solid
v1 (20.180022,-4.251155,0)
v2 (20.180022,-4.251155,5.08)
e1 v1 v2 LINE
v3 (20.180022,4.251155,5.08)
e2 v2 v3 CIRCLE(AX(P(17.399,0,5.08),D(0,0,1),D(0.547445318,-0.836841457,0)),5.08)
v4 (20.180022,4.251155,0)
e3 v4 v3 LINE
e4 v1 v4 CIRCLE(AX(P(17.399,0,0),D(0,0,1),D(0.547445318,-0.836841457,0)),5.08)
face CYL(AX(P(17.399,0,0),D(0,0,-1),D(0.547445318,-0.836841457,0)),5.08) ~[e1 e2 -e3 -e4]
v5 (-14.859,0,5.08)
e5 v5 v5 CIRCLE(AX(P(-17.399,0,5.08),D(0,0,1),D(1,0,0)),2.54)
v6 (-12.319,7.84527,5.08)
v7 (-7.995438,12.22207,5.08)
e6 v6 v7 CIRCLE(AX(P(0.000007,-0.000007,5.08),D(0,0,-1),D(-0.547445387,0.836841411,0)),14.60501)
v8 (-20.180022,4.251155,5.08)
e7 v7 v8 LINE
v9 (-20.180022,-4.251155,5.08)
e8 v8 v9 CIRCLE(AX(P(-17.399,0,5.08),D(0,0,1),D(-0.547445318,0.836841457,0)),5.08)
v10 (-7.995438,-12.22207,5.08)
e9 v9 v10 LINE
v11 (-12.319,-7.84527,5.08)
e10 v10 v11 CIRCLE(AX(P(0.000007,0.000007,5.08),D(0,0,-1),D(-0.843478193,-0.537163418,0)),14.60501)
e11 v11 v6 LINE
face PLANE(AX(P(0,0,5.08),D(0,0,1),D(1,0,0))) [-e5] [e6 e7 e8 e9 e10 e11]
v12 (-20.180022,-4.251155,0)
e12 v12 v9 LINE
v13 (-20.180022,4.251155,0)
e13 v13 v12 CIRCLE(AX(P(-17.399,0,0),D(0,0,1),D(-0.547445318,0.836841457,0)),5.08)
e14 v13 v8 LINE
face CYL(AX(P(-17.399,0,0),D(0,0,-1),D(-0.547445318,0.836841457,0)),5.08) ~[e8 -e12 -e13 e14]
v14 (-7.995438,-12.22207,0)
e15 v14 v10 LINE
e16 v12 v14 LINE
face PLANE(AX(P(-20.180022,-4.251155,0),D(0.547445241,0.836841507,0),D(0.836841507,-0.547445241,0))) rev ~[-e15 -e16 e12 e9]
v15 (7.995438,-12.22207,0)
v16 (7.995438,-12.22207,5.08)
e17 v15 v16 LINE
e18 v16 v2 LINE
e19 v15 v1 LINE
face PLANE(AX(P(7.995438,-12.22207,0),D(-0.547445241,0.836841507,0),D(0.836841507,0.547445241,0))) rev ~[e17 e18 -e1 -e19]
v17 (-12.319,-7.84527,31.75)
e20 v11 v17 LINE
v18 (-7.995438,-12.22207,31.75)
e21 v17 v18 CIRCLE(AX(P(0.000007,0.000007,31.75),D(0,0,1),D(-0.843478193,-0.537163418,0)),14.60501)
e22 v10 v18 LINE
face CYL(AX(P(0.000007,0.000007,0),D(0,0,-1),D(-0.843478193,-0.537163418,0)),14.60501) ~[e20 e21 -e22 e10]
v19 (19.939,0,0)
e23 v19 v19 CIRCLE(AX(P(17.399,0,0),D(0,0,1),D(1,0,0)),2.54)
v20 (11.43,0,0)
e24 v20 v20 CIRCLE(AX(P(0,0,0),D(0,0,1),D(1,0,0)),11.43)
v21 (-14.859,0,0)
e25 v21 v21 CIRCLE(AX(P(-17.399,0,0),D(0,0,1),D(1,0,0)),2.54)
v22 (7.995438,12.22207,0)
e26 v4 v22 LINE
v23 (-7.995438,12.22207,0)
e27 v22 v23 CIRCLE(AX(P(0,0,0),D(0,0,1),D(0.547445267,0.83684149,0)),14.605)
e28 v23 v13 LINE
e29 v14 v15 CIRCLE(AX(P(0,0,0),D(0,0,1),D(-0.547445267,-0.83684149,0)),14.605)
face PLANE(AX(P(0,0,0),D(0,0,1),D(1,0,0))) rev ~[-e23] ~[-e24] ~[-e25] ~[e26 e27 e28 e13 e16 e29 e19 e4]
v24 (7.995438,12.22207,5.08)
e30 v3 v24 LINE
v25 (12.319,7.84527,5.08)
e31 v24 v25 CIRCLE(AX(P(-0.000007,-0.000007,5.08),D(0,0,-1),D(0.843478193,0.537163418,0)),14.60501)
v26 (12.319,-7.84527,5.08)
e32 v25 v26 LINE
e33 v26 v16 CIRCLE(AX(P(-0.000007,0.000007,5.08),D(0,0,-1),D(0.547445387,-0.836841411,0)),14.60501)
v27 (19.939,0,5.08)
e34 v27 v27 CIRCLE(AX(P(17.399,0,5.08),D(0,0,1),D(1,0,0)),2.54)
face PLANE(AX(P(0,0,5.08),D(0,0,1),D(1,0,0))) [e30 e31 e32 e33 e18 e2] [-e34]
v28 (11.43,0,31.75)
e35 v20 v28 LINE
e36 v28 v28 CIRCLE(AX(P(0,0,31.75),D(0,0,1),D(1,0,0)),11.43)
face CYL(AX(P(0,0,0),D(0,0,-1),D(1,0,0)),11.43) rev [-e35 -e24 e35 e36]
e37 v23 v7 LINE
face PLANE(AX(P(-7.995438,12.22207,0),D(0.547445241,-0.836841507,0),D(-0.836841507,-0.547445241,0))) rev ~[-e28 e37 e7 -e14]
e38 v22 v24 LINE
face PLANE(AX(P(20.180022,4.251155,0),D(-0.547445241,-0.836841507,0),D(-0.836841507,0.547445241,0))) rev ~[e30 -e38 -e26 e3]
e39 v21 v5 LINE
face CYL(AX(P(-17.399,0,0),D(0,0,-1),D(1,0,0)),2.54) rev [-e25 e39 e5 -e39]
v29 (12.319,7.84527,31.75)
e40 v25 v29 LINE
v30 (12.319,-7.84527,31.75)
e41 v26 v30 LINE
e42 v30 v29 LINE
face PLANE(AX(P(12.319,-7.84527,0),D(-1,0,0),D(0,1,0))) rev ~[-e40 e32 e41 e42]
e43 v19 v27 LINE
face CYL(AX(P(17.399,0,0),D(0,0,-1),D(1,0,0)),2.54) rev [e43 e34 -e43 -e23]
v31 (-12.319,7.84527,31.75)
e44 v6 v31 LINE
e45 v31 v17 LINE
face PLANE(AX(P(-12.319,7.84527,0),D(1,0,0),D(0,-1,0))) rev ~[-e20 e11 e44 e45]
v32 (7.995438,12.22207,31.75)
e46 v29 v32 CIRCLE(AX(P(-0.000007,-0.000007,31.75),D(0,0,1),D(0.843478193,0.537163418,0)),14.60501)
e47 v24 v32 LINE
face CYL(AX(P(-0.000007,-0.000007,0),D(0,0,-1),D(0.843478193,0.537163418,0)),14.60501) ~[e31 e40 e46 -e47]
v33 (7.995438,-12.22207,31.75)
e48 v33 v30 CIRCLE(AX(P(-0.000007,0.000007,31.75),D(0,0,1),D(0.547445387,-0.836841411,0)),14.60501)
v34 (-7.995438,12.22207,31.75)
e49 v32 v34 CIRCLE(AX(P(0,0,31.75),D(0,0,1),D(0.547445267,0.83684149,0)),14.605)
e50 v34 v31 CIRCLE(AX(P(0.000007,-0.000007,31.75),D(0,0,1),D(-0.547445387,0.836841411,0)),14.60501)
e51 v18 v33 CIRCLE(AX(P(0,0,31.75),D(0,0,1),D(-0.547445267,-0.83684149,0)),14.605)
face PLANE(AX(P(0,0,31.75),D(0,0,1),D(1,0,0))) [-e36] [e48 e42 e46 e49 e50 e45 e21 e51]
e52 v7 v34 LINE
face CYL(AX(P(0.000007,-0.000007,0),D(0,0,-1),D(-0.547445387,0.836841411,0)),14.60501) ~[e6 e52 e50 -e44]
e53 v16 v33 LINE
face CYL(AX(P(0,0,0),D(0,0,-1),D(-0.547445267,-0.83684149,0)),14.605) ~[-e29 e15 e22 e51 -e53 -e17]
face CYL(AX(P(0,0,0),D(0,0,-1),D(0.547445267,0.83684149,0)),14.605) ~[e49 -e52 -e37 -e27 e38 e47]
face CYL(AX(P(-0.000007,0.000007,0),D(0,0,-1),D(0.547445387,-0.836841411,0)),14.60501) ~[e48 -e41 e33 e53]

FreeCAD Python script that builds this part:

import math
import FreeCAD as App
import Part
import Sketcher

V = App.Vector
Q = App.Units.Quantity

doc = App.newDocument("Part")
body = doc.addObject("PartDesign::Body", "Body")

# Sketch on XY plane
sketch1 = body.newObject("Sketcher::SketchObject", "Sketch")
sketch1.AttachmentSupport = (doc.getObject("XY_Plane"), [""])
sketch1.MapMode = "FlatFace"
sketch1.addGeometry([
    Part.ArcOfCircle(Part.Circle(V(0, 0, 0), V(0, 0, 1), 14.605), math.radians(56.808076), math.radians(123.191924)),  # 0
    Part.LineSegment(V(-7.995438, 12.22207, 0), V(-20.180022, 4.251155, 0)),  # 1
    Part.ArcOfCircle(Part.Circle(V(-17.399, 0, 0), V(0, 0, 1), 5.08), math.radians(123.191927), math.radians(236.808073)),  # 2
    Part.LineSegment(V(-20.180022, -4.251155, 0), V(-7.995438, -12.22207, 0)),  # 3
    Part.ArcOfCircle(Part.Circle(V(0, 0, 0), V(0, 0, 1), 14.605), math.radians(-123.191924), math.radians(-56.808076)),  # 4
    Part.LineSegment(V(7.995438, -12.22207, 0), V(20.180022, -4.251155, 0)),  # 5
    Part.ArcOfCircle(Part.Circle(V(17.399, 0, 0), V(0, 0, 1), 5.08), math.radians(-56.808073), math.radians(56.808073)),  # 6
    Part.LineSegment(V(20.180022, 4.251155, 0), V(7.995438, 12.22207, 0)),  # 7
    Part.Circle(V(-17.399, 0, 0), V(0, 0, 1), 2.54),  # 8
    Part.Circle(V(0, 0, 0), V(0, 0, 1), 11.43),  # 9
    Part.Circle(V(17.399, 0, 0), V(0, 0, 1), 2.54),  # 10
], False)
sketch1.addConstraint([
    Sketcher.Constraint("Tangent", 0, 2, 1, 1),
    Sketcher.Constraint("Tangent", 1, 2, 2, 1),
    Sketcher.Constraint("Tangent", 2, 2, 3, 1),
    Sketcher.Constraint("Tangent", 3, 2, 4, 1),
    Sketcher.Constraint("Tangent", 4, 2, 5, 1),
    Sketcher.Constraint("Tangent", 5, 2, 6, 1),
    Sketcher.Constraint("Tangent", 6, 2, 7, 1),
    Sketcher.Constraint("Tangent", 7, 2, 0, 1),
    Sketcher.Constraint("Coincident", 0, 3, -1, 1),
    Sketcher.Constraint("Coincident", 4, 3, -1, 1),
    Sketcher.Constraint("Coincident", 9, 3, -1, 1),
    Sketcher.Constraint("Coincident", 8, 3, 2, 3),
    Sketcher.Constraint("Coincident", 10, 3, 6, 3),
    Sketcher.Constraint("Equal", 0, 4),
    Sketcher.Constraint("Equal", 2, 6),
    Sketcher.Constraint("Equal", 8, 10),
    Sketcher.Constraint("Symmetric", 2, 3, 6, 3, -1, 1),
    Sketcher.Constraint("PointOnObject", 2, 3, -1),
    Sketcher.Constraint("Diameter", 8, Q("0.2 in")),
    Sketcher.Constraint("Diameter", 9, Q("0.9 in")),
    Sketcher.Constraint("Radius", 2, Q("0.2 in")),
    Sketcher.Constraint("Radius", 0, Q("0.575 in")),
    Sketcher.Constraint("DistanceX", 2, 3, 6, 3, Q("1.37 in")),
])
pad1 = body.newObject("PartDesign::Pad", "Pad")
pad1.Profile = sketch1
pad1.Length = Q("0.2 in")

# Sketch on XY plane
sketch2 = body.newObject("Sketcher::SketchObject", "Sketch001")
sketch2.AttachmentSupport = (doc.getObject("XY_Plane"), [""])
sketch2.MapMode = "FlatFace"
sketch2.addGeometry([
    Part.LineSegment(V(12.319, -7.84527, 0), V(12.319, 7.84527, 0)),  # 0
    Part.ArcOfCircle(Part.Circle(V(-0.000007, -0.000007, 0), V(0, 0, 1), 14.60501), math.radians(32.490748), math.radians(56.808068)),  # 1
    Part.ArcOfCircle(Part.Circle(V(0, 0, 0), V(0, 0, 1), 14.605), math.radians(56.808076), math.radians(123.191924)),  # 2
    Part.ArcOfCircle(Part.Circle(V(0.000007, -0.000007, 0), V(0, 0, 1), 14.60501), math.radians(123.191932), math.radians(147.509252)),  # 3
    Part.LineSegment(V(-12.319, 7.84527, 0), V(-12.319, -7.84527, 0)),  # 4
    Part.ArcOfCircle(Part.Circle(V(0.000007, 0.000007, 0), V(0, 0, 1), 14.60501), math.radians(-147.509252), math.radians(-123.191932)),  # 5
    Part.ArcOfCircle(Part.Circle(V(0, 0, 0), V(0, 0, 1), 14.605), math.radians(-123.191924), math.radians(-56.808076)),  # 6
    Part.ArcOfCircle(Part.Circle(V(-0.000007, 0.000007, 0), V(0, 0, 1), 14.60501), math.radians(-56.808068), math.radians(-32.490748)),  # 7
    Part.Circle(V(0, 0, 0), V(0, 0, 1), 11.43),  # 8
], False)
sketch2.addConstraint([
    Sketcher.Constraint("Coincident", 0, 2, 1, 1),
    Sketcher.Constraint("Tangent", 1, 2, 2, 1),
    Sketcher.Constraint("Tangent", 2, 2, 3, 1),
    Sketcher.Constraint("Coincident", 3, 2, 4, 1),
    Sketcher.Constraint("Coincident", 4, 2, 5, 1),
    Sketcher.Constraint("Tangent", 5, 2, 6, 1),
    Sketcher.Constraint("Tangent", 6, 2, 7, 1),
    Sketcher.Constraint("Coincident", 7, 2, 0, 1),
    Sketcher.Constraint("Vertical", 0),
    Sketcher.Constraint("Vertical", 4),
    Sketcher.Constraint("Coincident", 1, 3, -1, 1),
    Sketcher.Constraint("Coincident", 3, 3, -1, 1),
    Sketcher.Constraint("Coincident", 5, 3, -1, 1),
    Sketcher.Constraint("Coincident", 7, 3, -1, 1),
    Sketcher.Constraint("Coincident", 8, 3, -1, 1),
    Sketcher.Constraint("Equal", 3, 5),
    Sketcher.Constraint("Horizontal", 1, 2, 2, 2),
    Sketcher.Constraint("Horizontal", 0, 2, 3, 2),
    Sketcher.Constraint("Horizontal", 5, 2, 6, 2),
    Sketcher.Constraint("Vertical", 2, 2, 5, 2),
    Sketcher.Constraint("Diameter", 8, Q("0.9 in")),
    Sketcher.Constraint("Radius", 2, Q("0.575 in")),
    Sketcher.Constraint("DistanceX", -1, 1, 0, 2, Q("0.485 in")),
    Sketcher.Constraint("DistanceY", 0, 2, 1, 2, 4.3768),
])
pad2 = body.newObject("PartDesign::Pad", "Pad001")
pad2.Profile = sketch2
pad2.Length = Q("1.25 in")

doc.recompute()
